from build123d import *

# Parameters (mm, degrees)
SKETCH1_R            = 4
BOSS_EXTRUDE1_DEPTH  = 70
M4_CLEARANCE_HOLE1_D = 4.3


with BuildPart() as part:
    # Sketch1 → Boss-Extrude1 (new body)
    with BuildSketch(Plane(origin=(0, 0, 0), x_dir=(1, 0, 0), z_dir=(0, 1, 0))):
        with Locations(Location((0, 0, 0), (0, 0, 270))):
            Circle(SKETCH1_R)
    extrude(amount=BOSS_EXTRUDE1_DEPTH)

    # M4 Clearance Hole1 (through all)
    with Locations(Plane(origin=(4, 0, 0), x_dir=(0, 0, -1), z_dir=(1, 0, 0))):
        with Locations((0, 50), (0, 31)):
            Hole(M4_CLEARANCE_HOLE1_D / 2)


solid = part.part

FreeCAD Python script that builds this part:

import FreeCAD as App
import Part
import Sketcher

V = App.Vector
Q = App.Units.Quantity

doc = App.newDocument("Part")
body = doc.addObject("PartDesign::Body", "Body")

sketch1 = body.newObject("Sketcher::SketchObject", "Sketch")
sketch1.AttachmentSupport = (doc.getObject("XZ_Plane"), [""])
sketch1.MapMode = "FlatFace"
sketch1.addGeometry(Part.Circle(V(0, 0, 0), V(0, 0, 1), 4), False)
sketch1.addConstraint([
    Sketcher.Constraint("Coincident", 0, 3, -1, 1),
    Sketcher.Constraint("Diameter", 0, Q("8 mm")),
])
pad1 = body.newObject("PartDesign::Pad", "Pad")
pad1.Profile = sketch1
pad1.Length = 70
pad1.Reversed = True

sketch2 = body.newObject("Sketcher::SketchObject", "Sketch001")
sketch2.AttachmentSupport = (doc.getObject("YZ_Plane"), [""])
sketch2.MapMode = "FlatFace"
sketch2.AttachmentOffset = App.Placement(V(0, 0, 4), App.Rotation())
sketch2.addGeometry([
    Part.Circle(V(50, 0, 0), V(0, 0, 1), 2.15),
    Part.Circle(V(31, 0, 0), V(0, 0, 1), 2.15),
], False)
sketch2.addConstraint([
    Sketcher.Constraint("Equal", 0, 1),
    Sketcher.Constraint("PointOnObject", 0, 3, -1),
    Sketcher.Constraint("PointOnObject", 1, 3, -1),
    Sketcher.Constraint("Diameter", 0, Q("4.3 mm")),
    Sketcher.Constraint("DistanceX", -1, 1, 0, 3, Q("50 mm")),
    Sketcher.Constraint("DistanceX", -1, 1, 1, 3, Q("31 mm")),
])
doc.recompute()
hole = body.newObject("PartDesign::Hole", "Hole")
hole.Profile = sketch2
hole.ThreadType = "None"
hole.Diameter = 4.3
hole.DepthType = "ThroughAll"

doc.recompute()
